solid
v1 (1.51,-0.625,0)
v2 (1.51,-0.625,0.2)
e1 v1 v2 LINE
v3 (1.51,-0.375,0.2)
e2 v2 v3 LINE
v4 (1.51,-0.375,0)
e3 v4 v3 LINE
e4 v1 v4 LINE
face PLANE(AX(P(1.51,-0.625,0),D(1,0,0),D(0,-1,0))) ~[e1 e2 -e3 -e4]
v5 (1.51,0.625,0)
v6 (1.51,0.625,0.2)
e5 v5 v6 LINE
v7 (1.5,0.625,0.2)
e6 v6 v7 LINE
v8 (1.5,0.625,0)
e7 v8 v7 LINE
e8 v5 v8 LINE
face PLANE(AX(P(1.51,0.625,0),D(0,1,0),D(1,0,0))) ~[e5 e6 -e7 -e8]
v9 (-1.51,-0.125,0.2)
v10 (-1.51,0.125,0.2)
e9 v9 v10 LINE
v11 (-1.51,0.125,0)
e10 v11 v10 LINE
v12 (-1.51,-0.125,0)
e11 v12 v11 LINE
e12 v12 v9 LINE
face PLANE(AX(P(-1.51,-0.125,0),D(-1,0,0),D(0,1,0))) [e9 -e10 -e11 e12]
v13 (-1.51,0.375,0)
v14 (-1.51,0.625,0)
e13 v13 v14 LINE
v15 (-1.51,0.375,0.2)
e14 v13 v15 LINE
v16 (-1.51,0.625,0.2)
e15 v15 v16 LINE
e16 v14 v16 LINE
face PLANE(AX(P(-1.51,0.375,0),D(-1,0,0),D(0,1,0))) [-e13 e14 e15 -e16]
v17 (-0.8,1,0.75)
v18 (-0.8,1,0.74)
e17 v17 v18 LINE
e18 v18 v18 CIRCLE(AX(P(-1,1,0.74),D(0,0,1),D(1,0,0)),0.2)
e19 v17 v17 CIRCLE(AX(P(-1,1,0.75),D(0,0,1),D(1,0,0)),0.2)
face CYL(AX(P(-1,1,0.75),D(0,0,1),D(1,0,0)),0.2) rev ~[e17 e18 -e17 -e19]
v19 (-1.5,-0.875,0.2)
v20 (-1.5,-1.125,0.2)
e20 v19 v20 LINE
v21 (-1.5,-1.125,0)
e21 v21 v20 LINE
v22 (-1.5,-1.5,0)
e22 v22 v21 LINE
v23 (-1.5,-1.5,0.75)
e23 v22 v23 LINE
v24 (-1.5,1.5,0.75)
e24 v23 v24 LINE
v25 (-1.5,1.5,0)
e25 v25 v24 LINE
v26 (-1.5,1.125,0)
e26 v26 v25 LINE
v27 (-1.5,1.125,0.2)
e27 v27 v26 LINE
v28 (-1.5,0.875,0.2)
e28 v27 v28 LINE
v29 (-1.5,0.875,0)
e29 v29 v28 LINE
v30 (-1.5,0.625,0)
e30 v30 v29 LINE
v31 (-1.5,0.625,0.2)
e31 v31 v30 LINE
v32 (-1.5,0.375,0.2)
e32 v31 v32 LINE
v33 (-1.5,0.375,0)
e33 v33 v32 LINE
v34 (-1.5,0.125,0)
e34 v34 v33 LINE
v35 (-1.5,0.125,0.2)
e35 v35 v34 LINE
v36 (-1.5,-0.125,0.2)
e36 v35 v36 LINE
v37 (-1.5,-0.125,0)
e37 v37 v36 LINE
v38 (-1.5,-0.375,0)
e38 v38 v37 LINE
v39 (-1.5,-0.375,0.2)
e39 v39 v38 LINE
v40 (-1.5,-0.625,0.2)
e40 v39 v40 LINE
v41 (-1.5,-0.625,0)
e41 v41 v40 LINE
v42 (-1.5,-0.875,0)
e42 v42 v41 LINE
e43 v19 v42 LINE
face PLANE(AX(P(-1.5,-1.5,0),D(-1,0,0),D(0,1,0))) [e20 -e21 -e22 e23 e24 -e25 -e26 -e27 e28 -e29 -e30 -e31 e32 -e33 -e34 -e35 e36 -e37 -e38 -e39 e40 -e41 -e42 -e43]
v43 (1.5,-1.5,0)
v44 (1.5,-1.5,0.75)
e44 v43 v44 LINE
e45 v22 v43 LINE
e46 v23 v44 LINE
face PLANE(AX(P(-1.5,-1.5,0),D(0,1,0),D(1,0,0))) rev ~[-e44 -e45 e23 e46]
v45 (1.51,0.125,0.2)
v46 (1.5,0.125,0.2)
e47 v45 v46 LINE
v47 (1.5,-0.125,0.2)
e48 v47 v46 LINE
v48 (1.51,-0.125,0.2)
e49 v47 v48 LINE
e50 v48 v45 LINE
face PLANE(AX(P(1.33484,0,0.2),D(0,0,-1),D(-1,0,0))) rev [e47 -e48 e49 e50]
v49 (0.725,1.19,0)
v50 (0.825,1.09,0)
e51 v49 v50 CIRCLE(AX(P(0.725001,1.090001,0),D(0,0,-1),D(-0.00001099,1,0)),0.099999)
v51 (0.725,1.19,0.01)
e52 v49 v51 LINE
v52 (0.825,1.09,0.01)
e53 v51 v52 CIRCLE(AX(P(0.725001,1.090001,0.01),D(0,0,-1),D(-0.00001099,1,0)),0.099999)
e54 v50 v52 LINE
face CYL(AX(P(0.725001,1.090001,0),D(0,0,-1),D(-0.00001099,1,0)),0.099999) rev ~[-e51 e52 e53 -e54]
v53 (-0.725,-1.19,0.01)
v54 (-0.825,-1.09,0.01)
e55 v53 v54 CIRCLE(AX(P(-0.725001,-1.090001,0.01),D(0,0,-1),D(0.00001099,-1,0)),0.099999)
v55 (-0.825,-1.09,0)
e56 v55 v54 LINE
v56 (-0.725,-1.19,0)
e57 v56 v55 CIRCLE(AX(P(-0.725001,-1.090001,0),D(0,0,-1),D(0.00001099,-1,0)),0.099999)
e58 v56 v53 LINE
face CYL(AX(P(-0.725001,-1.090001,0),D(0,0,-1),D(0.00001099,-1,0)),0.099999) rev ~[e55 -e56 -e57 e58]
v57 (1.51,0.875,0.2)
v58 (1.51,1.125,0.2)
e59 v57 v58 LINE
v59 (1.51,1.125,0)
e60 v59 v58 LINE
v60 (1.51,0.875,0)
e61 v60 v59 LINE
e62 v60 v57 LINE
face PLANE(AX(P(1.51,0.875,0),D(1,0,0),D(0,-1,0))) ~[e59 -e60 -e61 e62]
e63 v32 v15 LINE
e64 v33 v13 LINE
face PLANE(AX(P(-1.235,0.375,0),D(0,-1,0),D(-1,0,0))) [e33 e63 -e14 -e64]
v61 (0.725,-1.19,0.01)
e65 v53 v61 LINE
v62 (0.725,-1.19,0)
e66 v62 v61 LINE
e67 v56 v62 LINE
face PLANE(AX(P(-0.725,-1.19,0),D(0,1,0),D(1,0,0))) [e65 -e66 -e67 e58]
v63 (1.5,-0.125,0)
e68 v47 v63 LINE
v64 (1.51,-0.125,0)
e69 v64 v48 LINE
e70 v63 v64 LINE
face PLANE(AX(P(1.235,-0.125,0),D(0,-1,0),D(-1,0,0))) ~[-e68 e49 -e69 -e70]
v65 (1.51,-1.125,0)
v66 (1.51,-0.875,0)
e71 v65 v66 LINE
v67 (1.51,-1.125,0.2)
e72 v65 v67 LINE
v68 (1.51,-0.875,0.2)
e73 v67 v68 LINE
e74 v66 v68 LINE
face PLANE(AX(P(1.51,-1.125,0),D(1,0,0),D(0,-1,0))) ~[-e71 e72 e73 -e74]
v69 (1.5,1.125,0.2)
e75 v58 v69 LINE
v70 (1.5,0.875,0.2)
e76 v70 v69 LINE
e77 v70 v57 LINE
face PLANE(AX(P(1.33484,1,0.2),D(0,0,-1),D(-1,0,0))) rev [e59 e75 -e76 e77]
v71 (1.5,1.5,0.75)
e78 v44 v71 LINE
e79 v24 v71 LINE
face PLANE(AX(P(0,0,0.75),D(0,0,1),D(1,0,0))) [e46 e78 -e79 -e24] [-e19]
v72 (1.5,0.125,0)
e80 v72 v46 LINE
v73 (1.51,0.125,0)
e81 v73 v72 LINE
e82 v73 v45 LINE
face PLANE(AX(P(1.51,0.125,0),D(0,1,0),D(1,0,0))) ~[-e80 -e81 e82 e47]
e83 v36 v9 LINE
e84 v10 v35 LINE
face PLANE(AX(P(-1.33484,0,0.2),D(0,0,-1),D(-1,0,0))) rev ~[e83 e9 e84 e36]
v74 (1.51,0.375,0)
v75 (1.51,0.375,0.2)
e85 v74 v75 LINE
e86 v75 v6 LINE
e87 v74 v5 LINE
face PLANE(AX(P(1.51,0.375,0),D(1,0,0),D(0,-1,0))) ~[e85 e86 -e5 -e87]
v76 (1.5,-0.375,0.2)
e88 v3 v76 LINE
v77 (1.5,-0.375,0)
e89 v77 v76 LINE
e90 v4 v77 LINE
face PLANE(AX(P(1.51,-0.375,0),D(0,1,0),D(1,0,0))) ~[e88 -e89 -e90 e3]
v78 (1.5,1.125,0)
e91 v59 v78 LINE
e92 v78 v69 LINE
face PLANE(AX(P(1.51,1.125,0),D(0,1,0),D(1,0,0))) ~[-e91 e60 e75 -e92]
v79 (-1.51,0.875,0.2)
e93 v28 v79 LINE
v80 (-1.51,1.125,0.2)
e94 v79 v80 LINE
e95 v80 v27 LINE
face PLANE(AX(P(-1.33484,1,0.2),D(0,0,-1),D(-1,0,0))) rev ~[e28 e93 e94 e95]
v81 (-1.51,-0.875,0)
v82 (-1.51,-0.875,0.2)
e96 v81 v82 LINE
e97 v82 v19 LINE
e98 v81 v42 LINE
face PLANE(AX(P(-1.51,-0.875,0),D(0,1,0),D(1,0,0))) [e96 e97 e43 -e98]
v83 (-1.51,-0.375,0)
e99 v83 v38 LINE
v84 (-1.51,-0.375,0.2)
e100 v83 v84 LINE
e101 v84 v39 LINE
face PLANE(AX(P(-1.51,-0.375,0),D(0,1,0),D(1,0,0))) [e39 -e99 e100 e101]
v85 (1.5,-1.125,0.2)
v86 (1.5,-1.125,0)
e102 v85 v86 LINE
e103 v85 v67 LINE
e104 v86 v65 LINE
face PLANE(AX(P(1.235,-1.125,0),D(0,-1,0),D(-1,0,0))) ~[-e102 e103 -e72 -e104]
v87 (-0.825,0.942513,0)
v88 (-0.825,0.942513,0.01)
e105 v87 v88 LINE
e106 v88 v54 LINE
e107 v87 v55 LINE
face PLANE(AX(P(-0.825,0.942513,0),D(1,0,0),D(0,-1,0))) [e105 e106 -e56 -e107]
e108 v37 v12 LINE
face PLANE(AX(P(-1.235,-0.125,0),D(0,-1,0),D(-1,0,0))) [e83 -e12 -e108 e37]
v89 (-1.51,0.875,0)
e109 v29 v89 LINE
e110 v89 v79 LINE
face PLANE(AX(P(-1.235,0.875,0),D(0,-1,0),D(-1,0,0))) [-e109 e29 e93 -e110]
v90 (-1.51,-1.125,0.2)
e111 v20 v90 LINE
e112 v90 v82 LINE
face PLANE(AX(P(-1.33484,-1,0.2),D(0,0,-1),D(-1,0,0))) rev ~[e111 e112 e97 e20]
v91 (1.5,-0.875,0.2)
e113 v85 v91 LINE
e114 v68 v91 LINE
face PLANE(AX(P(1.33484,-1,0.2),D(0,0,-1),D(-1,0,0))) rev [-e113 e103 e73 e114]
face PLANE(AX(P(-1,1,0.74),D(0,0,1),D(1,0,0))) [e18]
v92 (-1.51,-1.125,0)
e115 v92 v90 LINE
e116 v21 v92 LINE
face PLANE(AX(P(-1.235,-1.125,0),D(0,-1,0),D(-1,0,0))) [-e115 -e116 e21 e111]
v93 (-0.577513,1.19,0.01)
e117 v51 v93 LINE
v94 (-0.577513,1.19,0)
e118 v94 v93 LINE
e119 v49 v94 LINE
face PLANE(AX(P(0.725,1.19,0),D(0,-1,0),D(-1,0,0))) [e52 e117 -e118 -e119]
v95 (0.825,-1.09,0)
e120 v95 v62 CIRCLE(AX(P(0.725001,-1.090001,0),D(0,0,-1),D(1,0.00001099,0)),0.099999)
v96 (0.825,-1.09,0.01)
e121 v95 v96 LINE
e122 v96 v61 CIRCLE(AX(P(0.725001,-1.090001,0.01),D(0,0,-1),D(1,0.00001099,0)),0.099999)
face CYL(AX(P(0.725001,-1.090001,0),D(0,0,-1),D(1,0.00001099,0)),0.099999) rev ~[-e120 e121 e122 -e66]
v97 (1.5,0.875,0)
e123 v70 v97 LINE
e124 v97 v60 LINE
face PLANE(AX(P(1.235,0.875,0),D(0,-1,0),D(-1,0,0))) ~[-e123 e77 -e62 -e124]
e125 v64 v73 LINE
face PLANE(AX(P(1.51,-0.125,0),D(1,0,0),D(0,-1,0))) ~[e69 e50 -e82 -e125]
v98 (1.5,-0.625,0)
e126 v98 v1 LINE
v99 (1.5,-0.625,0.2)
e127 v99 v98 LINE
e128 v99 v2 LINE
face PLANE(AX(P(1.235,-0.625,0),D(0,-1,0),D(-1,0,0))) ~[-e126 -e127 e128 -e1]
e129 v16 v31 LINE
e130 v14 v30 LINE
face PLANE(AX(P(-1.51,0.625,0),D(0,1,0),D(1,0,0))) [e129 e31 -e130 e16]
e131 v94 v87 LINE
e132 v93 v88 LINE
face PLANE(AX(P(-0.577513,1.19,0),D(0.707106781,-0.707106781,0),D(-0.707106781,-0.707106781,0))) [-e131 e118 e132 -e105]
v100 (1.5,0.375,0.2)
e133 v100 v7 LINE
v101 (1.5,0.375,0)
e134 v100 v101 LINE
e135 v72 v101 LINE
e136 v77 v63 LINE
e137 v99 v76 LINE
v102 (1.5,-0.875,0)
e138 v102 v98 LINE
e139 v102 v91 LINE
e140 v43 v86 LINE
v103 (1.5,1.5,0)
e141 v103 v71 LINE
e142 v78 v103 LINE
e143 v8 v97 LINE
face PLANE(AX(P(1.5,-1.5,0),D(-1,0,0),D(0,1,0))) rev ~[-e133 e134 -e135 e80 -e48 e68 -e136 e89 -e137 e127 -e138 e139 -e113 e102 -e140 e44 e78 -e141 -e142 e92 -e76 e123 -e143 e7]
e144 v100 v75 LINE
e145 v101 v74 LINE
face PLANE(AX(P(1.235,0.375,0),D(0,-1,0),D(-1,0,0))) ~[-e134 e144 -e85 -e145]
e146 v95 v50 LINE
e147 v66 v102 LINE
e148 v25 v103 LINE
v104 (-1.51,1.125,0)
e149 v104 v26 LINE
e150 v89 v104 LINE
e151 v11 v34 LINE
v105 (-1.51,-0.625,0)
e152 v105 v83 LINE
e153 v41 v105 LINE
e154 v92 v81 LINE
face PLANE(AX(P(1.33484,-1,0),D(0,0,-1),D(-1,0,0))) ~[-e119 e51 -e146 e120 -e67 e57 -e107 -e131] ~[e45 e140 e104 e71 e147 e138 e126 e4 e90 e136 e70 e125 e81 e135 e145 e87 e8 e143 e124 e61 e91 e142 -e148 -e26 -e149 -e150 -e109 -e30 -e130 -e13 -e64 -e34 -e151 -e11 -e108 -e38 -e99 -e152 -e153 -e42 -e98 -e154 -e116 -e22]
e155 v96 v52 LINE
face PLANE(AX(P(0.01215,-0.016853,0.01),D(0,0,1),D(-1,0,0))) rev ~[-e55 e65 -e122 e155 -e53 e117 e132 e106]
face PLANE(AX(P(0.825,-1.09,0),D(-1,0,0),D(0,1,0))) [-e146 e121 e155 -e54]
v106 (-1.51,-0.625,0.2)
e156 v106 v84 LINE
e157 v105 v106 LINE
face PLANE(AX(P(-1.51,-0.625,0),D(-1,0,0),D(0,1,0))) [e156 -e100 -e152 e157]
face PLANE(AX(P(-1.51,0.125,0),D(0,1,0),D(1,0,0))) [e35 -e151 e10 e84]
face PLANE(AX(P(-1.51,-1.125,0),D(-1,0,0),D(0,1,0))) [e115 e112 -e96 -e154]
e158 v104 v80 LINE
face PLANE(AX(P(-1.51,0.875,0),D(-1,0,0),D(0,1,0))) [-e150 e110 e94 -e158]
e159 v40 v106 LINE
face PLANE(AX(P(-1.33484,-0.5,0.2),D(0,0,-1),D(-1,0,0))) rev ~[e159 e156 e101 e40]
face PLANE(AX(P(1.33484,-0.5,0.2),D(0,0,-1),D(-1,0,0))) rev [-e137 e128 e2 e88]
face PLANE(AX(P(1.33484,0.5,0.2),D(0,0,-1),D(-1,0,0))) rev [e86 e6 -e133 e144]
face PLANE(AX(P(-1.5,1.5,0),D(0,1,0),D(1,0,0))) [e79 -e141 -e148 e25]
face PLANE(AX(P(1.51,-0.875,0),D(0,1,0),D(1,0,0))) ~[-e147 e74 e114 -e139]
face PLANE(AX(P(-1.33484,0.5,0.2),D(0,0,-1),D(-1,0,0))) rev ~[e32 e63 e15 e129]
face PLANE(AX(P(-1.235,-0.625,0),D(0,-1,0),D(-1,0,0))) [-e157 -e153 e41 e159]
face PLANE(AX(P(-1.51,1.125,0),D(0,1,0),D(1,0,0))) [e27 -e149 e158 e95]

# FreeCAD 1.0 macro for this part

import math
import FreeCAD as App
import Part
import Sketcher
Q = App.Units.Quantity


def add_polygon(sketch, points):
    """Adds a closed chain of lines whose ends are joined by coincident constraints."""
    first, n = sketch.GeometryCount, len(points)
    for a, b in zip(points, points[1:] + points[:1]):
        sketch.addGeometry(Part.LineSegment(App.Vector(*a, 0), App.Vector(*b, 0)), False)
    for i in range(n):
        sketch.addConstraint(Sketcher.Constraint("Coincident", first + i, 2, first + (i + 1) % n, 1))

doc = App.newDocument("Part")
params = doc.addObject("Spreadsheet::Sheet", "Params")
for row, (alias, value) in enumerate([
    ("sketch1_width", "3 mm"),
    ("pad1_length", "0.75 mm"),
    ("pad2_length", "0.2 mm"),
    ("pad3_length", "0.2 mm"),
    ("pad4_length", "0.2 mm"),
    ("pad5_length", "0.2 mm"),
    ("pad6_length", "0.2 mm"),
    ("sketch7_diameter", "0.4 mm"),
    ("pocket1_length", "0.01 mm"),
    ("sketch8_radius", "0.099999 mm"),
    ("sketch8_width", "1.45 mm"),
    ("sketch8_height", "2.18 mm"),
    ("sketch8_length", "0.349999 mm"),
    ("pocket2_length", "0.01 mm"),
], start=1):
    params.set(f"A{row}", alias)
    params.set(f"B{row}", "=" + value)
    params.setAlias(f"B{row}", alias)

body = doc.addObject("PartDesign::Body", "Body")

# Sketch on XY plane
sketch1 = body.newObject("Sketcher::SketchObject", "Sketch")
sketch1.AttachmentSupport = (doc.getObject("XY_Plane"), [""])
sketch1.MapMode = "FlatFace"
add_polygon(sketch1, [(-1.5, 1.5), (-1.5, -1.5), (1.5, -1.5), (1.5, 1.5)])  # lines 0-3
sketch1.addConstraint([
    Sketcher.Constraint("Vertical", 0),
    Sketcher.Constraint("Horizontal", 1),
    Sketcher.Constraint("Vertical", 2),
    Sketcher.Constraint("Horizontal", 3),
    Sketcher.Constraint("Symmetric", 0, 2, 2, 2, -1, 1),
    Sketcher.Constraint("Equal", 3, 0),
    Sketcher.Constraint("DistanceX", 1, 1, 1, 2, 3.0),
])
sketch1.setExpression("Constraints[10]", "Params.sketch1_width")
pad1 = body.newObject("PartDesign::Pad", "Pad")
pad1.Profile = sketch1
pad1.setExpression("Length", "Params.pad1_length")

# Sketch on XY plane
sketch2 = body.newObject("Sketcher::SketchObject", "Sketch001")
sketch2.AttachmentSupport = (doc.getObject("XY_Plane"), [""])
sketch2.MapMode = "FlatFace"
sketch2.addGeometry([
    Part.LineSegment(App.Vector(-1.24, 1.12, 0), App.Vector(-1.51, 1.12, 0)),
    Part.LineSegment(App.Vector(-1.51, 1.12, 0), App.Vector(-1.51, 0.88, 0)),
    Part.LineSegment(App.Vector(-1.51, 0.88, 0), App.Vector(-1.24, 0.88, 0)),
    Part.ArcOfCircle(Part.Circle(App.Vector(-1.24, 1, 0), App.Vector(0, 0, 1), 0.12), math.radians(-90), math.radians(90)),
], False)
sketch2.addConstraint([
    Sketcher.Constraint("Coincident", 0, 2, 1, 1),
    Sketcher.Constraint("Coincident", 1, 2, 2, 1),
    Sketcher.Constraint("Tangent", 2, 2, 3, 1),
    Sketcher.Constraint("Tangent", 3, 2, 0, 1),
    Sketcher.Constraint("Horizontal", 0),
    Sketcher.Constraint("Vertical", 1),
    Sketcher.Constraint("Horizontal", 2),
    Sketcher.Constraint("DistanceY", -1, 1, 3, 3, 1.0),
    Sketcher.Constraint("Radius", 3, 0.125),
    Sketcher.Constraint("DistanceX", 0, 2, 0, 1, 0.275),
    Sketcher.Constraint("DistanceX", 0, 2, -1, 1, 1.51),
])
pad2 = body.newObject("PartDesign::Pad", "Pad001")
pad2.Profile = sketch2
pad2.setExpression("Length", "Params.pad2_length")

# Sketch on XY plane
sketch3 = body.newObject("Sketcher::SketchObject", "Sketch002")
sketch3.AttachmentSupport = (doc.getObject("XY_Plane"), [""])
sketch3.MapMode = "FlatFace"
sketch3.addGeometry([
    Part.LineSegment(App.Vector(-1.24, 0.62, 0), App.Vector(-1.51, 0.62, 0)),
    Part.LineSegment(App.Vector(-1.51, 0.62, 0), App.Vector(-1.51, 0.38, 0)),
    Part.LineSegment(App.Vector(-1.51, 0.38, 0), App.Vector(-1.24, 0.38, 0)),
    Part.ArcOfCircle(Part.Circle(App.Vector(-1.24, 0.5, 0), App.Vector(0, 0, 1), 0.12), math.radians(-90), math.radians(90)),
], False)
sketch3.addConstraint([
    Sketcher.Constraint("Coincident", 0, 2, 1, 1),
    Sketcher.Constraint("Coincident", 1, 2, 2, 1),
    Sketcher.Constraint("Tangent", 2, 2, 3, 1),
    Sketcher.Constraint("Tangent", 3, 2, 0, 1),
    Sketcher.Constraint("Horizontal", 0),
    Sketcher.Constraint("Vertical", 1),
    Sketcher.Constraint("Horizontal", 2),
    Sketcher.Constraint("Radius", 3, 0.125),
    Sketcher.Constraint("DistanceY", -1, 1, 3, 3, 0.5),
    Sketcher.Constraint("DistanceX", 0, 2, 0, 1, 0.275),
    Sketcher.Constraint("DistanceX", 0, 2, -1, 1, 1.51),
])
pad3 = body.newObject("PartDesign::Pad", "Pad002")
pad3.Profile = sketch3
pad3.setExpression("Length", "Params.pad3_length")

# Sketch on XY plane
sketch4 = body.newObject("Sketcher::SketchObject", "Sketch003")
sketch4.AttachmentSupport = (doc.getObject("XY_Plane"), [""])
sketch4.MapMode = "FlatFace"
sketch4.addGeometry([
    Part.LineSegment(App.Vector(-1.24, 0.12, 0), App.Vector(-1.51, 0.12, 0)),
    Part.LineSegment(App.Vector(-1.51, 0.12, 0), App.Vector(-1.51, -0.12, 0)),
    Part.LineSegment(App.Vector(-1.51, -0.12, 0), App.Vector(-1.24, -0.12, 0)),
    Part.ArcOfCircle(Part.Circle(App.Vector(-1.24, 0, 0), App.Vector(0, 0, 1), 0.12), math.radians(-90), math.radians(90)),
], False)
sketch4.addConstraint([
    Sketcher.Constraint("Coincident", 0, 2, 1, 1),
    Sketcher.Constraint("Coincident", 1, 2, 2, 1),
    Sketcher.Constraint("Tangent", 2, 2, 3, 1),
    Sketcher.Constraint("Tangent", 3, 2, 0, 1),
    Sketcher.Constraint("Horizontal", 0),
    Sketcher.Constraint("Vertical", 1),
    Sketcher.Constraint("Horizontal", 2),
    Sketcher.Constraint("PointOnObject", 3, 3, -1),
    Sketcher.Constraint("Radius", 3, 0.125),
    Sketcher.Constraint("DistanceX", 0, 2, 0, 1, 0.275),
    Sketcher.Constraint("DistanceX", 0, 2, -1, 1, 1.51),
])
pad4 = body.newObject("PartDesign::Pad", "Pad003")
pad4.Profile = sketch4
pad4.setExpression("Length", "Params.pad4_length")

# Sketch on XY plane
sketch5 = body.newObject("Sketcher::SketchObject", "Sketch004")
sketch5.AttachmentSupport = (doc.getObject("XY_Plane"), [""])
sketch5.MapMode = "FlatFace"
sketch5.addGeometry([
    Part.LineSegment(App.Vector(-1.24, -0.38, 0), App.Vector(-1.51, -0.38, 0)),
    Part.LineSegment(App.Vector(-1.51, -0.38, 0), App.Vector(-1.51, -0.62, 0)),
    Part.LineSegment(App.Vector(-1.51, -0.62, 0), App.Vector(-1.24, -0.62, 0)),
    Part.ArcOfCircle(Part.Circle(App.Vector(-1.24, -0.5, 0), App.Vector(0, 0, 1), 0.12), math.radians(-90), math.radians(90)),
], False)
sketch5.addConstraint([
    Sketcher.Constraint("Coincident", 0, 2, 1, 1),
    Sketcher.Constraint("Coincident", 1, 2, 2, 1),
    Sketcher.Constraint("Tangent", 2, 2, 3, 1),
    Sketcher.Constraint("Tangent", 3, 2, 0, 1),
    Sketcher.Constraint("Horizontal", 0),
    Sketcher.Constraint("Vertical", 1),
    Sketcher.Constraint("Horizontal", 2),
    Sketcher.Constraint("Radius", 3, 0.125),
    Sketcher.Constraint("DistanceY", 3, 3, -1, 1, 0.5),
    Sketcher.Constraint("DistanceX", 0, 2, 0, 1, 0.275),
    Sketcher.Constraint("DistanceX", 0, 2, -1, 1, 1.51),
])
pad5 = body.newObject("PartDesign::Pad", "Pad004")
pad5.Profile = sketch5
pad5.setExpression("Length", "Params.pad5_length")

# Sketch on XY plane
sketch6 = body.newObject("Sketcher::SketchObject", "Sketch005")
sketch6.AttachmentSupport = (doc.getObject("XY_Plane"), [""])
sketch6.MapMode = "FlatFace"
sketch6.addGeometry([
    Part.LineSegment(App.Vector(-1.24, -0.88, 0), App.Vector(-1.51, -0.88, 0)),
    Part.LineSegment(App.Vector(-1.51, -0.88, 0), App.Vector(-1.51, -1.12, 0)),
    Part.LineSegment(App.Vector(-1.51, -1.12, 0), App.Vector(-1.24, -1.12, 0)),
    Part.ArcOfCircle(Part.Circle(App.Vector(-1.24, -1, 0), App.Vector(0, 0, 1), 0.12), math.radians(-90), math.radians(90)),
], False)
sketch6.addConstraint([
    Sketcher.Constraint("Coincident", 0, 2, 1, 1),
    Sketcher.Constraint("Coincident", 1, 2, 2, 1),
    Sketcher.Constraint("Tangent", 2, 2, 3, 1),
    Sketcher.Constraint("Tangent", 3, 2, 0, 1),
    Sketcher.Constraint("Horizontal", 0),
    Sketcher.Constraint("Vertical", 1),
    Sketcher.Constraint("Horizontal", 2),
    Sketcher.Constraint("DistanceY", 3, 3, -1, 1, 1.0),
    Sketcher.Constraint("Radius", 3, 0.125),
    Sketcher.Constraint("DistanceX", 0, 2, 0, 1, 0.275),
    Sketcher.Constraint("DistanceX", 0, 2, -1, 1, 1.51),
])
pad6 = body.newObject("PartDesign::Pad", "Pad005")
pad6.Profile = sketch6
pad6.setExpression("Length", "Params.pad6_length")
doc.recompute()

mirrored = body.newObject("PartDesign::Mirrored", "Mirrored")
mirrored.Originals = [pad2, pad3, pad4, pad5, pad6]
mirrored.MirrorPlane = (doc.getObject("YZ_Plane"), [""])
body.Tip = mirrored

# Sketch on XY plane
sketch7 = body.newObject("Sketcher::SketchObject", "Sketch006")
sketch7.AttachmentSupport = (doc.getObject("XY_Plane"), [""])
sketch7.MapMode = "FlatFace"
sketch7.AttachmentOffset = App.Placement(App.Vector(0, 0, 0.75), App.Rotation())
sketch7.addGeometry(Part.Circle(App.Vector(-1, 1, 0), App.Vector(0, 0, 1), 0.2), False)
sketch7.addConstraint([
    Sketcher.Constraint("Diameter", 0, 0.4),
    Sketcher.Constraint("DistanceX", 0, 3, -1, 1, 1.0),
    Sketcher.Constraint("DistanceY", -1, 1, 0, 3, 1.0),
])
sketch7.setExpression("Constraints[0]", "Params.sketch7_diameter")
pocket1 = body.newObject("PartDesign::Pocket", "Pocket")
pocket1.Profile = sketch7
pocket1.setExpression("Length", "Params.pocket1_length")

# Sketch on XY plane
sketch8 = body.newObject("Sketcher::SketchObject", "Sketch007")
sketch8.AttachmentSupport = (doc.getObject("XY_Plane"), [""])
sketch8.MapMode = "FlatFace"
sketch8.addGeometry([
    Part.LineSegment(App.Vector(-0.58, 1.19, 0), App.Vector(0.72, 1.19, 0)),  # 0
    Part.ArcOfCircle(Part.Circle(App.Vector(0.73, 1.09, 0), App.Vector(0, 0, 1), 0.1), math.radians(0), math.radians(90)),  # 1
    Part.LineSegment(App.Vector(0.82, 1.09, 0), App.Vector(0.82, -1.09, 0)),  # 2
    Part.ArcOfCircle(Part.Circle(App.Vector(0.73, -1.09, 0), App.Vector(0, 0, 1), 0.1), math.radians(-90), math.radians(0)),  # 3
    Part.LineSegment(App.Vector(0.72, -1.19, 0), App.Vector(-0.72, -1.19, 0)),  # 4
    Part.ArcOfCircle(Part.Circle(App.Vector(-0.73, -1.09, 0), App.Vector(0, 0, 1), 0.1), math.radians(180), math.radians(270)),  # 5
    Part.LineSegment(App.Vector(-0.82, -1.09, 0), App.Vector(-0.82, 0.94, 0)),  # 6
    Part.LineSegment(App.Vector(-0.82, 0.94, 0), App.Vector(-0.58, 1.19, 0)),  # 7
], False)
sketch8.addConstraint([
    Sketcher.Constraint("Coincident", 0, 2, 1, 2),
    Sketcher.Constraint("Coincident", 1, 1, 2, 1),
    Sketcher.Constraint("Coincident", 2, 2, 3, 2),
    Sketcher.Constraint("Coincident", 3, 1, 4, 1),
    Sketcher.Constraint("Coincident", 4, 2, 5, 2),
    Sketcher.Constraint("Coincident", 5, 1, 6, 1),
    Sketcher.Constraint("Coincident", 6, 2, 7, 1),
    Sketcher.Constraint("Coincident", 7, 2, 0, 1),
    Sketcher.Constraint("Horizontal", 0),
    Sketcher.Constraint("Vertical", 2),
    Sketcher.Constraint("Horizontal", 4),
    Sketcher.Constraint("Vertical", 6),
    Sketcher.Constraint("Equal", 1, 3),
    Sketcher.Constraint("Equal", 3, 5),
    Sketcher.Constraint("Symmetric", 1, 3, 5, 3, -1, 1),
    Sketcher.Constraint("Horizontal", 5, 3, 2, 2),
    Sketcher.Constraint("Horizontal", 2, 2, 5, 1),
    Sketcher.Constraint("Vertical", 3, 3, 0, 2),
    Sketcher.Constraint("Vertical", 0, 2, 3, 1),
    Sketcher.Constraint("Vertical", 5, 3, 4, 2),
    Sketcher.Constraint("Radius", 1, 0.099999),
    Sketcher.Constraint("Angle", 7, Q("45 deg")),
    Sketcher.Constraint("DistanceX", 4, 2, 4, 1, 1.45),
    Sketcher.Constraint("DistanceY", 2, 2, 2, 1, 2.18),
    Sketcher.Constraint("DistanceY", 1, 1, 0, 2, 0.1),
    Sketcher.Constraint("Distance", 7, 0.349999),
])
sketch8.setExpression("Constraints[20]", "Params.sketch8_radius")
sketch8.setExpression("Constraints[22]", "Params.sketch8_width")
sketch8.setExpression("Constraints[23]", "Params.sketch8_height")
sketch8.setExpression("Constraints[25]", "Params.sketch8_length")
pocket2 = body.newObject("PartDesign::Pocket", "Pocket001")
pocket2.Profile = sketch8
pocket2.setExpression("Length", "Params.pocket2_length")
pocket2.Reversed = True

doc.recompute()
